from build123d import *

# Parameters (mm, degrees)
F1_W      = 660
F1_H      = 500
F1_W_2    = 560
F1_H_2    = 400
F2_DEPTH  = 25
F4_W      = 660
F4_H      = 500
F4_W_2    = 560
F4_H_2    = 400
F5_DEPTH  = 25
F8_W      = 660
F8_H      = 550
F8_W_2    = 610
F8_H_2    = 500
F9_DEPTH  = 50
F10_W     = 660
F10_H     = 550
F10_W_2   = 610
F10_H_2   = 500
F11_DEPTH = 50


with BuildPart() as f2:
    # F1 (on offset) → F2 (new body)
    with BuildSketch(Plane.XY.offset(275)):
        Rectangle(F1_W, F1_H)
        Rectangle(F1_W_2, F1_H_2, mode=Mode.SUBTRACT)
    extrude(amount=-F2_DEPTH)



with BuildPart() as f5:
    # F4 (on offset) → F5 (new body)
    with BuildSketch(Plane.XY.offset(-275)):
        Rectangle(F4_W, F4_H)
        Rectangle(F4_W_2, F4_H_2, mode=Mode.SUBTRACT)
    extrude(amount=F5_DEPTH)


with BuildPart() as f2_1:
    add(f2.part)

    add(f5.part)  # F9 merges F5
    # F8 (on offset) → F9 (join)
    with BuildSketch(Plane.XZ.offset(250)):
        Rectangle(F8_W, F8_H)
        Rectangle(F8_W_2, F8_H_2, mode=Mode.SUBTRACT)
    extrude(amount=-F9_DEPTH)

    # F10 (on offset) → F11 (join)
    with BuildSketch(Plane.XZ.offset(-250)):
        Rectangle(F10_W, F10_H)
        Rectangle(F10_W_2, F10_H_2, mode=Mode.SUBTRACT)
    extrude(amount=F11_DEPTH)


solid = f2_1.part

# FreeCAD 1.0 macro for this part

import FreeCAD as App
import Part
import Sketcher
Q = App.Units.Quantity


def add_polygon(sketch, points):
    """Adds a closed chain of lines whose ends are joined by coincident constraints."""
    first, n = sketch.GeometryCount, len(points)
    for a, b in zip(points, points[1:] + points[:1]):
        sketch.addGeometry(Part.LineSegment(App.Vector(*a, 0), App.Vector(*b, 0)), False)
    for i in range(n):
        sketch.addConstraint(Sketcher.Constraint("Coincident", first + i, 2, first + (i + 1) % n, 1))

doc = App.newDocument("Part")
body = doc.addObject("PartDesign::Body", "Body")

# Sketch on XY plane
sketch1 = doc.addObject("Sketcher::SketchObject", "Sketch")
body.addObject(sketch1)
sketch1.AttachmentSupport = (doc.XY_Plane, [""])
sketch1.MapMode = "FlatFace"
sketch1.AttachmentOffset = App.Placement(App.Vector(0, 0, 275), App.Rotation())
add_polygon(sketch1, [(-330, 250), (-330, -250), (330, -250), (330, 250)])  # lines 0-3
add_polygon(sketch1, [(280, -200), (-280, -200), (-280, 200), (280, 200)])  # lines 4-7
sketch1.addConstraint([
    Sketcher.Constraint("Vertical", 0),
    Sketcher.Constraint("Horizontal", 1),
    Sketcher.Constraint("Vertical", 2),
    Sketcher.Constraint("Horizontal", 3),
    Sketcher.Constraint("Horizontal", 4),
    Sketcher.Constraint("Vertical", 5),
    Sketcher.Constraint("Horizontal", 6),
    Sketcher.Constraint("Vertical", 7),
    Sketcher.Constraint("Symmetric", 0, 2, 2, 2, -1, 1),
    Sketcher.Constraint("Symmetric", 4, 2, 6, 2, -1, 1),
    Sketcher.Constraint("DistanceX", 1, 1, 1, 2, Q("660 mm")),
    Sketcher.Constraint("DistanceX", 4, 2, 4, 1, Q("560 mm")),
    Sketcher.Constraint("DistanceY", 0, 2, 0, 1, Q("500 mm")),
    Sketcher.Constraint("DistanceY", 5, 1, 5, 2, Q("400 mm")),
])
pad1 = doc.addObject("PartDesign::Pad", "Pad")
body.addObject(pad1)
pad1.Profile = sketch1
pad1.Length = 25
pad1.Reversed = True
body2 = doc.addObject("PartDesign::Body", "Body001")

# Sketch on XY plane
sketch2 = doc.addObject("Sketcher::SketchObject", "Sketch001")
body2.addObject(sketch2)
sketch2.AttachmentSupport = (doc.getObject("XY_Plane001"), [""])
sketch2.MapMode = "FlatFace"
sketch2.AttachmentOffset = App.Placement(App.Vector(0, 0, -275), App.Rotation())
add_polygon(sketch2, [(-330, 250), (-330, -250), (330, -250), (330, 250)])  # lines 0-3
add_polygon(sketch2, [(280, -200), (-280, -200), (-280, 200), (280, 200)])  # lines 4-7
sketch2.addConstraint([
    Sketcher.Constraint("Vertical", 0),
    Sketcher.Constraint("Horizontal", 1),
    Sketcher.Constraint("Vertical", 2),
    Sketcher.Constraint("Horizontal", 3),
    Sketcher.Constraint("Horizontal", 4),
    Sketcher.Constraint("Vertical", 5),
    Sketcher.Constraint("Horizontal", 6),
    Sketcher.Constraint("Vertical", 7),
    Sketcher.Constraint("Symmetric", 0, 2, 2, 2, -1, 1),
    Sketcher.Constraint("Symmetric", 4, 2, 6, 2, -1, 1),
    Sketcher.Constraint("DistanceX", 1, 1, 1, 2, Q("660 mm")),
    Sketcher.Constraint("DistanceX", 4, 2, 4, 1, Q("560 mm")),
    Sketcher.Constraint("DistanceY", 0, 2, 0, 1, Q("500 mm")),
    Sketcher.Constraint("DistanceY", 5, 1, 5, 2, Q("400 mm")),
])
pad2 = doc.addObject("PartDesign::Pad", "Pad001")
body2.addObject(pad2)
pad2.Profile = sketch2
pad2.Length = 25
body.AllowCompound = True
doc.recompute()

boolean = doc.addObject("PartDesign::Boolean", "Boolean")
body.addObject(boolean)
boolean.Type = "Fuse"
boolean.addObjects([body2])

# Sketch on XZ plane
sketch3 = doc.addObject("Sketcher::SketchObject", "Sketch002")
body.addObject(sketch3)
sketch3.AttachmentSupport = (doc.XZ_Plane, [""])
sketch3.MapMode = "FlatFace"
sketch3.AttachmentOffset = App.Placement(App.Vector(0, 0, 250), App.Rotation())
add_polygon(sketch3, [(-330, 275), (-330, -275), (330, -275), (330, 275)])  # lines 0-3
add_polygon(sketch3, [(305, -250), (-305, -250), (-305, 250), (305, 250)])  # lines 4-7
sketch3.addConstraint([
    Sketcher.Constraint("Vertical", 0),
    Sketcher.Constraint("Horizontal", 1),
    Sketcher.Constraint("Vertical", 2),
    Sketcher.Constraint("Horizontal", 3),
    Sketcher.Constraint("Horizontal", 4),
    Sketcher.Constraint("Vertical", 5),
    Sketcher.Constraint("Horizontal", 6),
    Sketcher.Constraint("Vertical", 7),
    Sketcher.Constraint("Symmetric", 0, 2, 2, 2, -1, 1),
    Sketcher.Constraint("Symmetric", 4, 2, 6, 2, -1, 1),
    Sketcher.Constraint("DistanceX", 1, 1, 1, 2, Q("660 mm")),
    Sketcher.Constraint("DistanceX", 4, 2, 4, 1, Q("610 mm")),
    Sketcher.Constraint("DistanceY", 0, 2, 0, 1, Q("550 mm")),
    Sketcher.Constraint("DistanceY", 5, 1, 5, 2, Q("500 mm")),
])
pad3 = doc.addObject("PartDesign::Pad", "Pad002")
body.addObject(pad3)
pad3.Profile = sketch3
pad3.Length = 50
pad3.Reversed = True

# Sketch on XZ plane
sketch4 = doc.addObject("Sketcher::SketchObject", "Sketch003")
body.addObject(sketch4)
sketch4.AttachmentSupport = (doc.XZ_Plane, [""])
sketch4.MapMode = "FlatFace"
sketch4.AttachmentOffset = App.Placement(App.Vector(0, 0, -250), App.Rotation())
add_polygon(sketch4, [(-330, 275), (-330, -275), (330, -275), (330, 275)])  # lines 0-3
add_polygon(sketch4, [(305, -250), (-305, -250), (-305, 250), (305, 250)])  # lines 4-7
sketch4.addConstraint([
    Sketcher.Constraint("Vertical", 0),
    Sketcher.Constraint("Horizontal", 1),
    Sketcher.Constraint("Vertical", 2),
    Sketcher.Constraint("Horizontal", 3),
    Sketcher.Constraint("Horizontal", 4),
    Sketcher.Constraint("Vertical", 5),
    Sketcher.Constraint("Horizontal", 6),
    Sketcher.Constraint("Vertical", 7),
    Sketcher.Constraint("Symmetric", 0, 2, 2, 2, -1, 1),
    Sketcher.Constraint("Symmetric", 4, 2, 6, 2, -1, 1),
    Sketcher.Constraint("DistanceX", 1, 1, 1, 2, Q("660 mm")),
    Sketcher.Constraint("DistanceX", 4, 2, 4, 1, Q("610 mm")),
    Sketcher.Constraint("DistanceY", 0, 2, 0, 1, Q("550 mm")),
    Sketcher.Constraint("DistanceY", 5, 1, 5, 2, Q("500 mm")),
])
pad4 = doc.addObject("PartDesign::Pad", "Pad003")
body.addObject(pad4)
pad4.Profile = sketch4
pad4.Length = 50

doc.recompute()
